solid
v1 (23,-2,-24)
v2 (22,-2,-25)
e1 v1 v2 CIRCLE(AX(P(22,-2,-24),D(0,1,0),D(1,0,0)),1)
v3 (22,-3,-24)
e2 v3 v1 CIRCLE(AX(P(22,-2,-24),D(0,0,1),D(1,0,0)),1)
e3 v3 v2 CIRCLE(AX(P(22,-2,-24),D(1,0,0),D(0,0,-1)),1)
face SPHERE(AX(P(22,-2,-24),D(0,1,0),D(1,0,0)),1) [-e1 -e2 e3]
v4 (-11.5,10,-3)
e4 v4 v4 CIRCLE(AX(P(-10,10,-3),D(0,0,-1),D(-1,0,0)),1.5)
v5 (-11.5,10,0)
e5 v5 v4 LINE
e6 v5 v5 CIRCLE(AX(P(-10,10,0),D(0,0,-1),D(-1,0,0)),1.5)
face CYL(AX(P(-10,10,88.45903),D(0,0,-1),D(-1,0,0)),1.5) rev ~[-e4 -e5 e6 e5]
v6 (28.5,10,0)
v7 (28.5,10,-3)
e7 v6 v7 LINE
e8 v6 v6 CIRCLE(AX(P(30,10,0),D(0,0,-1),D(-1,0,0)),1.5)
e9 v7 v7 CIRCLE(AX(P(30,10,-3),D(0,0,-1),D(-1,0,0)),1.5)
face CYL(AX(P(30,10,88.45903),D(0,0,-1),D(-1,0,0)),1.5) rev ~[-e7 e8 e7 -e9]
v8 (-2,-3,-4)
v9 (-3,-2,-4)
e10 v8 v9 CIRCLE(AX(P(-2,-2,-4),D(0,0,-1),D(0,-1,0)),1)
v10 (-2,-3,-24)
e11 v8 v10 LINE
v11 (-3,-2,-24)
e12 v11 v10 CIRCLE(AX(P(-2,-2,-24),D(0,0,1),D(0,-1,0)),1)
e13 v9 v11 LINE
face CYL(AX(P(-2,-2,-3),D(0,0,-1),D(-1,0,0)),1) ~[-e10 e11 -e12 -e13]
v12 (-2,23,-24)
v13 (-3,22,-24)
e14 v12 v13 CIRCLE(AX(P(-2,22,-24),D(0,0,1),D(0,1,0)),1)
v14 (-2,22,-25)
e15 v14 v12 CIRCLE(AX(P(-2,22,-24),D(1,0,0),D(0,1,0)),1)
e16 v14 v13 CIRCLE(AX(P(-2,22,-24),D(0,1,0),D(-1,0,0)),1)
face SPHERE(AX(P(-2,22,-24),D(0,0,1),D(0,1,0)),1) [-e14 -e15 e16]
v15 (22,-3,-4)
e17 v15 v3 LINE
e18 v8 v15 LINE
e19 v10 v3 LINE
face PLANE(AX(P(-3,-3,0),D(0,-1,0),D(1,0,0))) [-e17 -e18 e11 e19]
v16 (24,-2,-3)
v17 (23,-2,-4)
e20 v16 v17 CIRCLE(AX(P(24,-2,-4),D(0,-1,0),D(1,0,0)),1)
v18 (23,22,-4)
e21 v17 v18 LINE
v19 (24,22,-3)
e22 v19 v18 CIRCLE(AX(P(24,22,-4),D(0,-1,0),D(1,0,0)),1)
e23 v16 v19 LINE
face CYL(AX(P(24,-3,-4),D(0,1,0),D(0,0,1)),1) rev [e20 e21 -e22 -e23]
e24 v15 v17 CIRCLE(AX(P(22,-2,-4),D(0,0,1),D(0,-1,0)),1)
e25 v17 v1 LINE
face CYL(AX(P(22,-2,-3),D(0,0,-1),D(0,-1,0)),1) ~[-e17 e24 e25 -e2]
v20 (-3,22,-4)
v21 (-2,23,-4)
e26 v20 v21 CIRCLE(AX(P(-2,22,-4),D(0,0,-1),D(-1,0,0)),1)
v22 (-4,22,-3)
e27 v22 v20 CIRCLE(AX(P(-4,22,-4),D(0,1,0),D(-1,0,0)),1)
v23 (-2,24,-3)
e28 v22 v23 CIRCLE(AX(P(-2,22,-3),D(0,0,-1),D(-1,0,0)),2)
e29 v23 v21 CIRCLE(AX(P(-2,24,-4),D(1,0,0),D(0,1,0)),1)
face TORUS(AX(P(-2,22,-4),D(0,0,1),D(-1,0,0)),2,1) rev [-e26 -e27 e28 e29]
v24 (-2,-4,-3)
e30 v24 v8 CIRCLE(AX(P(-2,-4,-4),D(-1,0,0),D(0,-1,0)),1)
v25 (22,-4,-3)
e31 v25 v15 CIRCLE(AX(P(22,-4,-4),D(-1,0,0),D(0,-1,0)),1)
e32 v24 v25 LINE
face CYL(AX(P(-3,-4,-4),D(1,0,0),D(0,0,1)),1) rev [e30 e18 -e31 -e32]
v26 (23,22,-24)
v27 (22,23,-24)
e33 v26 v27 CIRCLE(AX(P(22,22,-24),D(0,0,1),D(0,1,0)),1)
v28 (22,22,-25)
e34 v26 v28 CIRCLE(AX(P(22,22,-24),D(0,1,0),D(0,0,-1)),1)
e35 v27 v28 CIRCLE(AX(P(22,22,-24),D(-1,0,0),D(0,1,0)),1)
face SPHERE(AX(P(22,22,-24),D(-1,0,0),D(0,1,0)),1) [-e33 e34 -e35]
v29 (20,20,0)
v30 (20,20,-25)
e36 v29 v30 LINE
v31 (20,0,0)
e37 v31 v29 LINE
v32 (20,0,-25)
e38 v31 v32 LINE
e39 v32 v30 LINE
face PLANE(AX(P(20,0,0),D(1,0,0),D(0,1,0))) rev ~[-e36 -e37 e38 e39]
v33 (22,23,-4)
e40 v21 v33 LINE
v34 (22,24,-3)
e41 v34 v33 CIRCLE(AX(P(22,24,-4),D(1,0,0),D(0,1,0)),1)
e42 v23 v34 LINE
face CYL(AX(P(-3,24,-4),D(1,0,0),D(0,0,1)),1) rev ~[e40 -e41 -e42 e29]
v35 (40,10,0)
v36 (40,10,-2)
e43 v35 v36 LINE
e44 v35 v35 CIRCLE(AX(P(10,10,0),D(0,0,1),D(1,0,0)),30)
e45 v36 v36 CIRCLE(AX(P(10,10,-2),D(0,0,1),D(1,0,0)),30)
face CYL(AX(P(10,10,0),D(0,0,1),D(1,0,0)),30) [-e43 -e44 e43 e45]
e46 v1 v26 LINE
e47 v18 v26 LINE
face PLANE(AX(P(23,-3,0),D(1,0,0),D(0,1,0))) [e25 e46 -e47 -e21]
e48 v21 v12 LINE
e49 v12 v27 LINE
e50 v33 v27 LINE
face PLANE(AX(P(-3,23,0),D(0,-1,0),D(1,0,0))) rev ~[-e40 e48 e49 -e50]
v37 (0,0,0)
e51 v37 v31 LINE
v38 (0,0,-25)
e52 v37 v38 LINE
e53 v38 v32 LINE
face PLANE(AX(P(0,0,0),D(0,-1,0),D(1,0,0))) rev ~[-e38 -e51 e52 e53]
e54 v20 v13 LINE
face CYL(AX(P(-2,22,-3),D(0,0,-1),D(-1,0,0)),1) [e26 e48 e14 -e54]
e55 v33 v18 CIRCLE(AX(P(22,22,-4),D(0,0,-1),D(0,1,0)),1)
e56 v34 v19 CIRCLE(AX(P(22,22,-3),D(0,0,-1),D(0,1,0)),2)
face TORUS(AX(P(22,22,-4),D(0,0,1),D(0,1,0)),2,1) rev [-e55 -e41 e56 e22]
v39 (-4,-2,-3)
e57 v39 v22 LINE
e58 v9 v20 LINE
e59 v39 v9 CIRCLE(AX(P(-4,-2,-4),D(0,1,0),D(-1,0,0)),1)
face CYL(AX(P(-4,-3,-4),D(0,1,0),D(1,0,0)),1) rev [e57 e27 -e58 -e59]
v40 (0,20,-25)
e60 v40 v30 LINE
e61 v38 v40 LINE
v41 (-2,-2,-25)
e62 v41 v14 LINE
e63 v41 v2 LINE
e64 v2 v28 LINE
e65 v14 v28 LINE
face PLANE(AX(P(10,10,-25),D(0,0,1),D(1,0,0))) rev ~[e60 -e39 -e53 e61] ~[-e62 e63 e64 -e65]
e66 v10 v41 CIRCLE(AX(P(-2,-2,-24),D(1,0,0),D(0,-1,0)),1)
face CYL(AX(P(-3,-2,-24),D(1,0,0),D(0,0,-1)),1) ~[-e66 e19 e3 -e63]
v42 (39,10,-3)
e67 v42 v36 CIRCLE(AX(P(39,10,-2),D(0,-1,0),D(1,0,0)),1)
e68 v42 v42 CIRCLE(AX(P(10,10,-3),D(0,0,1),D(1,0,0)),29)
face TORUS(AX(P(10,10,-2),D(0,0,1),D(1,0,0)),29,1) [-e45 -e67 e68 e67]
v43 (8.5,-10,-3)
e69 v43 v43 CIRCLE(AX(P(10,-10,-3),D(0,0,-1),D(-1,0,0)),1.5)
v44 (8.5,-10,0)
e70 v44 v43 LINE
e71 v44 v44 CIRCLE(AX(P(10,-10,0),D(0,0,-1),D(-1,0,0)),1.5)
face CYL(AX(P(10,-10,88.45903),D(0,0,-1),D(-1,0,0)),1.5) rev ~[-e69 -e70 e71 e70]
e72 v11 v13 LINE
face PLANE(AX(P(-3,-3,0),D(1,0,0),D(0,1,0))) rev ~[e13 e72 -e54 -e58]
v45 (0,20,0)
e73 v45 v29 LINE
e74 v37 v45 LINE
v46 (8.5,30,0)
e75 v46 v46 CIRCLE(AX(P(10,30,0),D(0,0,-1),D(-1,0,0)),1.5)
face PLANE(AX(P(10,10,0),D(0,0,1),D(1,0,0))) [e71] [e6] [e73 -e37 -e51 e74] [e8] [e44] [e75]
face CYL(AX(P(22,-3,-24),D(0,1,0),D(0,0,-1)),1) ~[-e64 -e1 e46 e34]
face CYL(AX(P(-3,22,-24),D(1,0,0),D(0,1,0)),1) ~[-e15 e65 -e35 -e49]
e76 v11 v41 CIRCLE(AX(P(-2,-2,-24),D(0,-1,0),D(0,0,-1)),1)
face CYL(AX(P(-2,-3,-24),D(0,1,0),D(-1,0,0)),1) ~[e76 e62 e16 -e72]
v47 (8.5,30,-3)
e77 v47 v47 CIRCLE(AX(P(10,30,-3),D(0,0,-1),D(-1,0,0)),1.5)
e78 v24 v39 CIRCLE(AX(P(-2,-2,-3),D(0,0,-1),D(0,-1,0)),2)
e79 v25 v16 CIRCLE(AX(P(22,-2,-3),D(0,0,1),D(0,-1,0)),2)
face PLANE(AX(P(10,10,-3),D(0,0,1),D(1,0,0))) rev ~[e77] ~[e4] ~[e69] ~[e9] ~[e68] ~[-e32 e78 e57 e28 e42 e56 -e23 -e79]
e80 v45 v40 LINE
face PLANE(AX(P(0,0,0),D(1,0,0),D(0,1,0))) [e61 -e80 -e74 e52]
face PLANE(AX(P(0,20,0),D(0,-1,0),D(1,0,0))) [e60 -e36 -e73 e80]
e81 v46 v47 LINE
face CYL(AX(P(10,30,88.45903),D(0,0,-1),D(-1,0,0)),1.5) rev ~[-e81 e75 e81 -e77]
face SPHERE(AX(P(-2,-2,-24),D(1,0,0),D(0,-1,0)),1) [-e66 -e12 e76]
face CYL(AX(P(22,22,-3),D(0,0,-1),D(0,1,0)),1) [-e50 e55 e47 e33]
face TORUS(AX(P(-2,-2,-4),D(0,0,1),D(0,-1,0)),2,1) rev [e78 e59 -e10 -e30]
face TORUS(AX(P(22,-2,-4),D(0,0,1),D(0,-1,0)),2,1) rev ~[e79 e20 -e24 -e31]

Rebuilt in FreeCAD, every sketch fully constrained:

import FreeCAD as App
import Part
import Sketcher
from FreeCAD import Vector


def edges_at(feature, points):
    """Names of the edges that pass closest to the given points."""
    edges = feature.Shape.Edges
    near = lambda p: min(range(len(edges)), key=lambda i: edges[i].distToShape(Part.Vertex(*p))[0])
    return sorted({f"Edge{near(p) + 1}" for p in points})


def add_polygon(sketch, points):
    """Adds a closed chain of lines whose ends are joined by coincident constraints."""
    first, n = sketch.GeometryCount, len(points)
    for a, b in zip(points, points[1:] + points[:1]):
        sketch.addGeometry(Part.LineSegment(App.Vector(*a, 0), App.Vector(*b, 0)), False)
    for i in range(n):
        sketch.addConstraint(Sketcher.Constraint("Coincident", first + i, 2, first + (i + 1) % n, 1))

doc = App.newDocument("Part")
params = doc.addObject("Spreadsheet::Sheet", "Params")
for row, (alias, value) in enumerate([
    ("sketch1_diameter", "60 mm"),
    ("sketch1_width", "26 mm"),
    ("pad1_length", "3 mm"),
    ("sketch2_width", "26 mm"),
    ("sketch2_width2", "20 mm"),
    ("pad2_length", "25 mm"),
    ("fillet_radius", "1 mm"),
    ("sketch3_diameter", "3 mm"),
    ("hole_diameter", "3 mm"),
], start=1):
    params.set(f"A{row}", alias)
    params.set(f"B{row}", "=" + value)
    params.setAlias(f"B{row}", alias)

body = doc.addObject("PartDesign::Body", "Body")

# Sketch on XY plane
sketch1 = body.newObject("Sketcher::SketchObject", "Sketch")
sketch1.AttachmentSupport = (doc.getObject("XY_Plane"), [""])
sketch1.MapMode = "FlatFace"
sketch1.addGeometry(Part.Circle(Vector(10, 10, 0), Vector(0, 0, 1), 30), False)  # 0
add_polygon(sketch1, [(23, -3), (-3, -3), (-3, 23), (23, 23)])  # lines 1-4
sketch1.addConstraint([
    Sketcher.Constraint("Horizontal", 1),
    Sketcher.Constraint("Vertical", 2),
    Sketcher.Constraint("Horizontal", 3),
    Sketcher.Constraint("Vertical", 4),
    Sketcher.Constraint("Equal", 3, 2),
    Sketcher.Constraint("Diameter", 0, 60.0),
    Sketcher.Constraint("DistanceX", 1, 2, 1, 1, 26.0),
    Sketcher.Constraint("DistanceX", -1, 1, 0, 3, 10.0),
    Sketcher.Constraint("DistanceY", -1, 1, 0, 3, 10.0),
    Sketcher.Constraint("DistanceX", 1, 2, -1, 1, 3.0),
    Sketcher.Constraint("DistanceY", 1, 2, -1, 1, 3.0),
])
sketch1.setExpression("Constraints[9]", "Params.sketch1_diameter")
sketch1.setExpression("Constraints[10]", "Params.sketch1_width")
pad1 = body.newObject("PartDesign::Pad", "Pad")
pad1.Profile = sketch1
pad1.setExpression("Length", "Params.pad1_length")
pad1.Reversed = True

# Sketch on XY plane
sketch2 = body.newObject("Sketcher::SketchObject", "Sketch001")
sketch2.AttachmentSupport = (doc.getObject("XY_Plane"), [""])
sketch2.MapMode = "FlatFace"
add_polygon(sketch2, [(-3, 23), (-3, -3), (23, -3), (23, 23)])  # lines 0-3
add_polygon(sketch2, [(20, 0), (0, 0), (0, 20), (20, 20)])  # lines 4-7
sketch2.addConstraint([
    Sketcher.Constraint("Vertical", 0),
    Sketcher.Constraint("Horizontal", 1),
    Sketcher.Constraint("Vertical", 2),
    Sketcher.Constraint("Horizontal", 3),
    Sketcher.Constraint("Horizontal", 4),
    Sketcher.Constraint("Vertical", 5),
    Sketcher.Constraint("Horizontal", 6),
    Sketcher.Constraint("Vertical", 7),
    Sketcher.Constraint("Coincident", 4, 2, -1, 1),
    Sketcher.Constraint("Equal", 3, 0),
    Sketcher.Constraint("Equal", 6, 5),
    Sketcher.Constraint("DistanceX", 1, 1, 1, 2, 26.0),
    Sketcher.Constraint("DistanceX", 4, 2, 4, 1, 20.0),
    Sketcher.Constraint("DistanceX", 0, 2, -1, 1, 3.0),
    Sketcher.Constraint("DistanceY", 0, 2, -1, 1, 3.0),
])
sketch2.setExpression("Constraints[19]", "Params.sketch2_width")
sketch2.setExpression("Constraints[20]", "Params.sketch2_width2")
pad2 = body.newObject("PartDesign::Pad", "Pad001")
pad2.Profile = sketch2
pad2.setExpression("Length", "Params.pad2_length")
pad2.Reversed = True
doc.recompute()

fillet = body.newObject("PartDesign::Fillet", "Fillet")
fillet.Base = (pad2, edges_at(pad2, [
    (-20, 10, -3),
    (10, -3, -3),
    (-3, 10, -3),
    (10, 23, -3),
    (23, 10, -3),
    (-3, 23, -14),
    (10, 23, -25),
    (23, 23, -14),
    (23, 10, -25),
    (23, -3, -14),
    (10, -3, -25),
    (-3, -3, -14),
    (-3, 10, -25),
]))
fillet.setExpression("Radius", "Params.fillet_radius")

# Sketch on XY plane
sketch3 = body.newObject("Sketcher::SketchObject", "Sketch002")
sketch3.AttachmentSupport = (doc.getObject("XY_Plane"), [""])
sketch3.MapMode = "FlatFace"
sketch3.addGeometry([
    Part.Circle(Vector(10, 30, 0), Vector(0, 0, 1), 1.5),
    Part.Circle(Vector(30, 10, 0), Vector(0, 0, 1), 1.5),
    Part.Circle(Vector(10, -10, 0), Vector(0, 0, 1), 1.5),
    Part.Circle(Vector(-10, 10, 0), Vector(0, 0, 1), 1.5),
], False)
sketch3.addConstraint([
    Sketcher.Constraint("Equal", 0, 1),
    Sketcher.Constraint("Equal", 1, 2),
    Sketcher.Constraint("Equal", 2, 3),
    Sketcher.Constraint("Symmetric", 2, 3, 3, 3, -1, 1),
    Sketcher.Constraint("Horizontal", 1, 3, 3, 3),
    Sketcher.Constraint("Vertical", 0, 3, 2, 3),
    Sketcher.Constraint("Diameter", 0, 3.0),
    Sketcher.Constraint("DistanceX", -1, 1, 0, 3, 10.0),
    Sketcher.Constraint("DistanceY", -1, 1, 0, 3, 30.0),
    Sketcher.Constraint("DistanceX", -1, 1, 1, 3, 30.0),
    Sketcher.Constraint("DistanceY", -1, 1, 1, 3, 10.0),
])
sketch3.setExpression("Constraints[6]", "Params.sketch3_diameter")
doc.recompute()
hole = body.newObject("PartDesign::Hole", "Hole")
hole.Profile = sketch3
hole.ThreadType = "None"
hole.setExpression("Diameter", "Params.hole_diameter")
hole.DepthType = "ThroughAll"

doc.recompute()
